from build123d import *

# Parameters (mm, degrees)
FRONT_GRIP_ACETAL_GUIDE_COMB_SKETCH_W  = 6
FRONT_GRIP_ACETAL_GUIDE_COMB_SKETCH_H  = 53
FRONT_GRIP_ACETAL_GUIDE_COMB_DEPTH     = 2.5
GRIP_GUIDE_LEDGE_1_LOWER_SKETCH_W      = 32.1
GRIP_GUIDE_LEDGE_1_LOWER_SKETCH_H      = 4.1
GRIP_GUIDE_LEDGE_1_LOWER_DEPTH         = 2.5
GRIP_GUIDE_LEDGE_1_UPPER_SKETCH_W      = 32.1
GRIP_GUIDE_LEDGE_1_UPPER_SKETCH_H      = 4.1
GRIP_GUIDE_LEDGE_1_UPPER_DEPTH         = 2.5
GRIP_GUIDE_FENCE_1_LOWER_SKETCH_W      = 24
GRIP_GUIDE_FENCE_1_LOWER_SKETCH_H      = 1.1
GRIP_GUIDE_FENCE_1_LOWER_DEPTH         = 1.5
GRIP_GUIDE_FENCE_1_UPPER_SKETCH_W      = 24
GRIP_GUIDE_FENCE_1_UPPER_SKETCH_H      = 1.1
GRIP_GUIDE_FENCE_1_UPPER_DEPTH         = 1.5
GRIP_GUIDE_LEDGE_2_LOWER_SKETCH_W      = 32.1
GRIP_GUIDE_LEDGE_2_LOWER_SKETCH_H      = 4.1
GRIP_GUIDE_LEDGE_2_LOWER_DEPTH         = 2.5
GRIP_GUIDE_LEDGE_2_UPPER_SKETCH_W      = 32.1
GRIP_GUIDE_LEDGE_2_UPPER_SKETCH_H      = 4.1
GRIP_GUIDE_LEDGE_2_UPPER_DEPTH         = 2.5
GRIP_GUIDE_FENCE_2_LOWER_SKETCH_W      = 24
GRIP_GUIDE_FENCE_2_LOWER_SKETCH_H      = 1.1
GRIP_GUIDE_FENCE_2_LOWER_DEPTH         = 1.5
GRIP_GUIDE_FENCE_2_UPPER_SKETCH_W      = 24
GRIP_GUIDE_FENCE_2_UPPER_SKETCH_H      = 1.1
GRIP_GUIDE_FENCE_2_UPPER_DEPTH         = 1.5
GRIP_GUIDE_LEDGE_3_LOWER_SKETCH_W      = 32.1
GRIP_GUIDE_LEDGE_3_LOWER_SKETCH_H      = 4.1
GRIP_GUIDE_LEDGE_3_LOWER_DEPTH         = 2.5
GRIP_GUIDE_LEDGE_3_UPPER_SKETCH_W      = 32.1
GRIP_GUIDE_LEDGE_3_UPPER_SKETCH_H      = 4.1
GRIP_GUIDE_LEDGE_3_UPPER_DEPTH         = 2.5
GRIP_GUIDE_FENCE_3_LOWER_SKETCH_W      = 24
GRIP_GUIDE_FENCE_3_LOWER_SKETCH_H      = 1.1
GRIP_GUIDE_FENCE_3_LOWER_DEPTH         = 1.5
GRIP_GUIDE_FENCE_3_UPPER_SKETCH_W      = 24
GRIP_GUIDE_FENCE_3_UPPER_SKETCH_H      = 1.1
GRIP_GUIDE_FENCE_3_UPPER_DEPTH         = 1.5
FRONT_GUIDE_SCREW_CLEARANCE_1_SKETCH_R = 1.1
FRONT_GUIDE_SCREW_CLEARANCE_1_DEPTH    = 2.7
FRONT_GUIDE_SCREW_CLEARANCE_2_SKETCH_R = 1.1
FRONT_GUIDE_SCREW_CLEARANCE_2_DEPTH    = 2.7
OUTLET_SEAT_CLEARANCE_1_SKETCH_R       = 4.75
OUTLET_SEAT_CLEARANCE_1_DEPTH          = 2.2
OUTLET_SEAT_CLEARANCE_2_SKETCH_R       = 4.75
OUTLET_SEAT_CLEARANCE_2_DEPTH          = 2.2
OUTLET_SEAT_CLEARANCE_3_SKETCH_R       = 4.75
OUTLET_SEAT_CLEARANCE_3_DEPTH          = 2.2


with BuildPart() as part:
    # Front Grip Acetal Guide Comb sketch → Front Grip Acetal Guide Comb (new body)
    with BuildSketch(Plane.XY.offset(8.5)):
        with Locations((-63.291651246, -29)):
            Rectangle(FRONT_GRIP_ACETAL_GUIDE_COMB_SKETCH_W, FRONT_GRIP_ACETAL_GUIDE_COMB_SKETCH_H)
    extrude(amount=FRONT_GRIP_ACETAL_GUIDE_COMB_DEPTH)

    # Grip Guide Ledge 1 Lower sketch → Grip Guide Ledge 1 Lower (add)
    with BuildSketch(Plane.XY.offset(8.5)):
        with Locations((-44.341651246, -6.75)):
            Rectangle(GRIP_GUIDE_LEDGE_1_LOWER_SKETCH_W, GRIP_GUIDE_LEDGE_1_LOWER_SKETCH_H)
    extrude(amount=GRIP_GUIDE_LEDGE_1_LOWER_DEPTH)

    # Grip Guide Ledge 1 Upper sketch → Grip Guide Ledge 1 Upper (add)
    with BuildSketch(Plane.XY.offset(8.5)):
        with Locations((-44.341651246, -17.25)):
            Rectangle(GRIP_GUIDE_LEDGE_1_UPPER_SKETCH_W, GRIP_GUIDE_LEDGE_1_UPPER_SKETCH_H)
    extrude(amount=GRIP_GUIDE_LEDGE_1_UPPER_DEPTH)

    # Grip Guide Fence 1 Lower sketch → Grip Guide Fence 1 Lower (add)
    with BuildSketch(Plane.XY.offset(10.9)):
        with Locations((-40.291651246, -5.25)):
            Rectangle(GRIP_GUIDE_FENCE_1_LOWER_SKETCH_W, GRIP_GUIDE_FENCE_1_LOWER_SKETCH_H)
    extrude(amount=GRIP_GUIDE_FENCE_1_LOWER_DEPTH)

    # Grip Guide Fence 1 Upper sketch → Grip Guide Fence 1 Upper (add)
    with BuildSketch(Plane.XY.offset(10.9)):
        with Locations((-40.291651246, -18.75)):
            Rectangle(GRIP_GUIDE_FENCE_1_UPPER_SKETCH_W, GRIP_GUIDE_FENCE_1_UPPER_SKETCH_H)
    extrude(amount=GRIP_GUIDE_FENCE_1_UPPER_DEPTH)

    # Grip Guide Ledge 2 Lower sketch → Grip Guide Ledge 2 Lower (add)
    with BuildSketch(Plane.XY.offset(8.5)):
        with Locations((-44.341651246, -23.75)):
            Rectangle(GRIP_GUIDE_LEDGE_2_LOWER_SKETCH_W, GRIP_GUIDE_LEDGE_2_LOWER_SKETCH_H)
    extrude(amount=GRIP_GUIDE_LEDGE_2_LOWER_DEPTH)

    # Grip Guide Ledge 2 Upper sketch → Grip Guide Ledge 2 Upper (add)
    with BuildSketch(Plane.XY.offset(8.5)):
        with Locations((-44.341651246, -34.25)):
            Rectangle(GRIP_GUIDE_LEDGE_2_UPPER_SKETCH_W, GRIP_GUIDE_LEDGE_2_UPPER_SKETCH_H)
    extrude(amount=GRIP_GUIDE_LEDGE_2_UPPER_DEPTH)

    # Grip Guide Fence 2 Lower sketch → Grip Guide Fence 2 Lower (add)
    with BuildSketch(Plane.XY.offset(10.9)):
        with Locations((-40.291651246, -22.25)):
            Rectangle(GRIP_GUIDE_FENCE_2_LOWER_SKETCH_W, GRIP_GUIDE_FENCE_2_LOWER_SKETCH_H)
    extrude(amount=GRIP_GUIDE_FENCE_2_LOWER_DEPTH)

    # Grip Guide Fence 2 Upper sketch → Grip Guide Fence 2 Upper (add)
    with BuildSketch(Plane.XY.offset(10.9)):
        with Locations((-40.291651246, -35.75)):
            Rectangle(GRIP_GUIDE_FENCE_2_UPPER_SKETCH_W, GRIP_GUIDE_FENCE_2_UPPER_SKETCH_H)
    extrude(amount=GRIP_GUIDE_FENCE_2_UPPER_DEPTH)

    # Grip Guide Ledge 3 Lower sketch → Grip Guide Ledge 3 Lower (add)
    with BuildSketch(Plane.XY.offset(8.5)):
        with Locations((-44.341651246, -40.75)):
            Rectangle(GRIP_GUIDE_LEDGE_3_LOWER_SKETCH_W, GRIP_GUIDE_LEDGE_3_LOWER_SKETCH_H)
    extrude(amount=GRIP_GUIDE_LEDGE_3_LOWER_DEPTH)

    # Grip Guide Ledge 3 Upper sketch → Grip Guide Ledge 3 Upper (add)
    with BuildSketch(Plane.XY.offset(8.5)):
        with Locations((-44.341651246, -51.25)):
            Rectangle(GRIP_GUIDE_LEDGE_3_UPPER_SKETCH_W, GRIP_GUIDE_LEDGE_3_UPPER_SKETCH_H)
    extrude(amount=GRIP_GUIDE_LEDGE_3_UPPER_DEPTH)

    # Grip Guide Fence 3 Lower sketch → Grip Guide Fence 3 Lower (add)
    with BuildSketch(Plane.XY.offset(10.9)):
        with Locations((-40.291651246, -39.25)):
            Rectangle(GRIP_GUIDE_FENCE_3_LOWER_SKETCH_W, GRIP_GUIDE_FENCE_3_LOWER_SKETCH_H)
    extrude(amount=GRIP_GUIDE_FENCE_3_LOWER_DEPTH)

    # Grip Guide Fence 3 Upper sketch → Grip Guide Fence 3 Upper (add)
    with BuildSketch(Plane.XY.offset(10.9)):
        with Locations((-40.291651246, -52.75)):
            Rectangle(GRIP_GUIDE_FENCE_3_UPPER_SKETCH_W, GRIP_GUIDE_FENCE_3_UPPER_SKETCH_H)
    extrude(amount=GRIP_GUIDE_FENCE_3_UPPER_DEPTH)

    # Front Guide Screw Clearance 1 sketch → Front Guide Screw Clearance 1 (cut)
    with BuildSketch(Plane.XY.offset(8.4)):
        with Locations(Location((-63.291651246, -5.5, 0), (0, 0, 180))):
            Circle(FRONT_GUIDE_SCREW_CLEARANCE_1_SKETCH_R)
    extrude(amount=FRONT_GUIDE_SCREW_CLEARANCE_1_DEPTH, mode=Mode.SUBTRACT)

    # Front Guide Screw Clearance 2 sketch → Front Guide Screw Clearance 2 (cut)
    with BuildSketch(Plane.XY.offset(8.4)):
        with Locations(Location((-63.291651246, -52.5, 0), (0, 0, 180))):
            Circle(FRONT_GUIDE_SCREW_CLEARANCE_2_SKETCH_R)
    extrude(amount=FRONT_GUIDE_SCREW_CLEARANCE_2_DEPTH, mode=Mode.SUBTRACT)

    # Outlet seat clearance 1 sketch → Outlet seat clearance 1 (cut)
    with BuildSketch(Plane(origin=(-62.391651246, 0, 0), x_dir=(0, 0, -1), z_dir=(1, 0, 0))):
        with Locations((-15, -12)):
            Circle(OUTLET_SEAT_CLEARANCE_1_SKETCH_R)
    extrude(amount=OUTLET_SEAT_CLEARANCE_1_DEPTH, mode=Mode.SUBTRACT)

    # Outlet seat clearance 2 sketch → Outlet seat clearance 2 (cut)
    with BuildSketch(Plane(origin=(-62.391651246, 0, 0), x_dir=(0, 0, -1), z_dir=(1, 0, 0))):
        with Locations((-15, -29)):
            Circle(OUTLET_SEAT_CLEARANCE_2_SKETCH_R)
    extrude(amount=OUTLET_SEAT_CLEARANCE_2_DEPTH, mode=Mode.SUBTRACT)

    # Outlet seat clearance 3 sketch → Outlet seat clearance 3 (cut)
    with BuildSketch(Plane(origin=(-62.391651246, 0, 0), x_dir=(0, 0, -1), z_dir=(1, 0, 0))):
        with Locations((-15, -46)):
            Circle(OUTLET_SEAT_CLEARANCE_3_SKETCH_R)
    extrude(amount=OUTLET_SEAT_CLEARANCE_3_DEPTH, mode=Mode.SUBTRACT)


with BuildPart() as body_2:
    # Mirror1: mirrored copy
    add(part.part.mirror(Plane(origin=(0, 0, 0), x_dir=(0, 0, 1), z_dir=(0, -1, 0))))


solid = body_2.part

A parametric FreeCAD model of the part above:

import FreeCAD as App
import Part
import Sketcher
Q = App.Units.Quantity

doc = App.newDocument("Part")
body = doc.addObject("PartDesign::Body", "Body")

# Sketch on XY plane
sketch1 = body.newObject("Sketcher::SketchObject", "Sketch")
sketch1.AttachmentSupport = (doc.getObject("XY_Plane"), [""])
sketch1.MapMode = "FlatFace"
sketch1.AttachmentOffset = App.Placement(App.Vector(0, 0, 8.5), App.Rotation())
sketch1.addGeometry([
    Part.LineSegment(App.Vector(-66, -2, 0), App.Vector(-66, -56, 0)),
    Part.LineSegment(App.Vector(-66, -56, 0), App.Vector(-60, -56, 0)),
    Part.LineSegment(App.Vector(-60, -56, 0), App.Vector(-60, -2, 0)),
    Part.LineSegment(App.Vector(-60, -2, 0), App.Vector(-66, -2, 0)),
], False)
sketch1.addConstraint([
    Sketcher.Constraint("Coincident", 0, 2, 1, 1),
    Sketcher.Constraint("Coincident", 1, 2, 2, 1),
    Sketcher.Constraint("Coincident", 2, 2, 3, 1),
    Sketcher.Constraint("Coincident", 3, 2, 0, 1),
    Sketcher.Constraint("Vertical", 0),
    Sketcher.Constraint("Horizontal", 1),
    Sketcher.Constraint("Vertical", 2),
    Sketcher.Constraint("Horizontal", 3),
    Sketcher.Constraint("DistanceX", 1, 1, 1, 2, Q("6 mm")),
    Sketcher.Constraint("DistanceY", 0, 2, 0, 1, Q("53 mm")),
    Sketcher.Constraint("DistanceY", 0, 2, -1, 1, Q("55.5 mm")),
    Sketcher.Constraint("DistanceX", 0, 2, -1, 1, Q("66.291651 mm")),
])
pad1 = body.newObject("PartDesign::Pad", "Pad")
pad1.Profile = sketch1
pad1.Length = 2.5

# Sketch on XY plane
sketch2 = body.newObject("Sketcher::SketchObject", "Sketch001")
sketch2.AttachmentSupport = (doc.getObject("XY_Plane"), [""])
sketch2.MapMode = "FlatFace"
sketch2.AttachmentOffset = App.Placement(App.Vector(0, 0, 8.5), App.Rotation())
sketch2.addGeometry([
    Part.LineSegment(App.Vector(-60.4, -4.7, 0), App.Vector(-60.4, -8.8, 0)),
    Part.LineSegment(App.Vector(-60.4, -8.8, 0), App.Vector(-28.3, -8.8, 0)),
    Part.LineSegment(App.Vector(-28.3, -8.8, 0), App.Vector(-28.3, -4.7, 0)),
    Part.LineSegment(App.Vector(-28.3, -4.7, 0), App.Vector(-60.4, -4.7, 0)),
], False)
sketch2.addConstraint([
    Sketcher.Constraint("Coincident", 0, 2, 1, 1),
    Sketcher.Constraint("Coincident", 1, 2, 2, 1),
    Sketcher.Constraint("Coincident", 2, 2, 3, 1),
    Sketcher.Constraint("Coincident", 3, 2, 0, 1),
    Sketcher.Constraint("Vertical", 0),
    Sketcher.Constraint("Horizontal", 1),
    Sketcher.Constraint("Vertical", 2),
    Sketcher.Constraint("Horizontal", 3),
    Sketcher.Constraint("DistanceX", 1, 1, 1, 2, Q("32.1 mm")),
    Sketcher.Constraint("DistanceY", 0, 2, 0, 1, Q("4.1 mm")),
    Sketcher.Constraint("DistanceY", 0, 2, -1, 1, Q("8.8 mm")),
    Sketcher.Constraint("DistanceX", 0, 2, -1, 1, Q("60.391651 mm")),
])
pad2 = body.newObject("PartDesign::Pad", "Pad001")
pad2.Profile = sketch2
pad2.Length = 2.5

# Sketch on XY plane
sketch3 = body.newObject("Sketcher::SketchObject", "Sketch002")
sketch3.AttachmentSupport = (doc.getObject("XY_Plane"), [""])
sketch3.MapMode = "FlatFace"
sketch3.AttachmentOffset = App.Placement(App.Vector(0, 0, 8.5), App.Rotation())
sketch3.addGeometry([
    Part.LineSegment(App.Vector(-60.4, -15.2, 0), App.Vector(-60.4, -19.3, 0)),
    Part.LineSegment(App.Vector(-60.4, -19.3, 0), App.Vector(-28.3, -19.3, 0)),
    Part.LineSegment(App.Vector(-28.3, -19.3, 0), App.Vector(-28.3, -15.2, 0)),
    Part.LineSegment(App.Vector(-28.3, -15.2, 0), App.Vector(-60.4, -15.2, 0)),
], False)
sketch3.addConstraint([
    Sketcher.Constraint("Coincident", 0, 2, 1, 1),
    Sketcher.Constraint("Coincident", 1, 2, 2, 1),
    Sketcher.Constraint("Coincident", 2, 2, 3, 1),
    Sketcher.Constraint("Coincident", 3, 2, 0, 1),
    Sketcher.Constraint("Vertical", 0),
    Sketcher.Constraint("Horizontal", 1),
    Sketcher.Constraint("Vertical", 2),
    Sketcher.Constraint("Horizontal", 3),
    Sketcher.Constraint("DistanceX", 1, 1, 1, 2, Q("32.1 mm")),
    Sketcher.Constraint("DistanceY", 0, 2, 0, 1, Q("4.1 mm")),
    Sketcher.Constraint("DistanceY", 0, 2, -1, 1, Q("19.3 mm")),
    Sketcher.Constraint("DistanceX", 0, 2, -1, 1, Q("60.391651 mm")),
])
pad3 = body.newObject("PartDesign::Pad", "Pad002")
pad3.Profile = sketch3
pad3.Length = 2.5

# Sketch on XY plane
sketch4 = body.newObject("Sketcher::SketchObject", "Sketch003")
sketch4.AttachmentSupport = (doc.getObject("XY_Plane"), [""])
sketch4.MapMode = "FlatFace"
sketch4.AttachmentOffset = App.Placement(App.Vector(0, 0, 10.9), App.Rotation())
sketch4.addGeometry([
    Part.LineSegment(App.Vector(-52.3, -4.7, 0), App.Vector(-52.3, -5.8, 0)),
    Part.LineSegment(App.Vector(-52.3, -5.8, 0), App.Vector(-28.3, -5.8, 0)),
    Part.LineSegment(App.Vector(-28.3, -5.8, 0), App.Vector(-28.3, -4.7, 0)),
    Part.LineSegment(App.Vector(-28.3, -4.7, 0), App.Vector(-52.3, -4.7, 0)),
], False)
sketch4.addConstraint([
    Sketcher.Constraint("Coincident", 0, 2, 1, 1),
    Sketcher.Constraint("Coincident", 1, 2, 2, 1),
    Sketcher.Constraint("Coincident", 2, 2, 3, 1),
    Sketcher.Constraint("Coincident", 3, 2, 0, 1),
    Sketcher.Constraint("Vertical", 0),
    Sketcher.Constraint("Horizontal", 1),
    Sketcher.Constraint("Vertical", 2),
    Sketcher.Constraint("Horizontal", 3),
    Sketcher.Constraint("DistanceX", 1, 1, 1, 2, Q("24 mm")),
    Sketcher.Constraint("DistanceY", 0, 2, 0, 1, Q("1.1 mm")),
    Sketcher.Constraint("DistanceY", 0, 2, -1, 1, Q("5.8 mm")),
    Sketcher.Constraint("DistanceX", 0, 2, -1, 1, Q("52.291651 mm")),
])
pad4 = body.newObject("PartDesign::Pad", "Pad003")
pad4.Profile = sketch4
pad4.Length = 1.5

# Sketch on XY plane
sketch5 = body.newObject("Sketcher::SketchObject", "Sketch004")
sketch5.AttachmentSupport = (doc.getObject("XY_Plane"), [""])
sketch5.MapMode = "FlatFace"
sketch5.AttachmentOffset = App.Placement(App.Vector(0, 0, 10.9), App.Rotation())
sketch5.addGeometry([
    Part.LineSegment(App.Vector(-52.3, -18.2, 0), App.Vector(-52.3, -19.3, 0)),
    Part.LineSegment(App.Vector(-52.3, -19.3, 0), App.Vector(-28.3, -19.3, 0)),
    Part.LineSegment(App.Vector(-28.3, -19.3, 0), App.Vector(-28.3, -18.2, 0)),
    Part.LineSegment(App.Vector(-28.3, -18.2, 0), App.Vector(-52.3, -18.2, 0)),
], False)
sketch5.addConstraint([
    Sketcher.Constraint("Coincident", 0, 2, 1, 1),
    Sketcher.Constraint("Coincident", 1, 2, 2, 1),
    Sketcher.Constraint("Coincident", 2, 2, 3, 1),
    Sketcher.Constraint("Coincident", 3, 2, 0, 1),
    Sketcher.Constraint("Vertical", 0),
    Sketcher.Constraint("Horizontal", 1),
    Sketcher.Constraint("Vertical", 2),
    Sketcher.Constraint("Horizontal", 3),
    Sketcher.Constraint("DistanceX", 1, 1, 1, 2, Q("24 mm")),
    Sketcher.Constraint("DistanceY", 0, 2, 0, 1, Q("1.1 mm")),
    Sketcher.Constraint("DistanceY", 0, 2, -1, 1, Q("19.3 mm")),
    Sketcher.Constraint("DistanceX", 0, 2, -1, 1, Q("52.291651 mm")),
])
pad5 = body.newObject("PartDesign::Pad", "Pad004")
pad5.Profile = sketch5
pad5.Length = 1.5

# Sketch on XY plane
sketch6 = body.newObject("Sketcher::SketchObject", "Sketch005")
sketch6.AttachmentSupport = (doc.getObject("XY_Plane"), [""])
sketch6.MapMode = "FlatFace"
sketch6.AttachmentOffset = App.Placement(App.Vector(0, 0, 8.5), App.Rotation())
sketch6.addGeometry([
    Part.LineSegment(App.Vector(-60.4, -21.7, 0), App.Vector(-60.4, -25.8, 0)),
    Part.LineSegment(App.Vector(-60.4, -25.8, 0), App.Vector(-28.3, -25.8, 0)),
    Part.LineSegment(App.Vector(-28.3, -25.8, 0), App.Vector(-28.3, -21.7, 0)),
    Part.LineSegment(App.Vector(-28.3, -21.7, 0), App.Vector(-60.4, -21.7, 0)),
], False)
sketch6.addConstraint([
    Sketcher.Constraint("Coincident", 0, 2, 1, 1),
    Sketcher.Constraint("Coincident", 1, 2, 2, 1),
    Sketcher.Constraint("Coincident", 2, 2, 3, 1),
    Sketcher.Constraint("Coincident", 3, 2, 0, 1),
    Sketcher.Constraint("Vertical", 0),
    Sketcher.Constraint("Horizontal", 1),
    Sketcher.Constraint("Vertical", 2),
    Sketcher.Constraint("Horizontal", 3),
    Sketcher.Constraint("DistanceX", 1, 1, 1, 2, Q("32.1 mm")),
    Sketcher.Constraint("DistanceY", 0, 2, 0, 1, Q("4.1 mm")),
    Sketcher.Constraint("DistanceY", 0, 2, -1, 1, Q("25.8 mm")),
    Sketcher.Constraint("DistanceX", 0, 2, -1, 1, Q("60.391651 mm")),
])
pad6 = body.newObject("PartDesign::Pad", "Pad005")
pad6.Profile = sketch6
pad6.Length = 2.5

# Sketch on XY plane
sketch7 = body.newObject("Sketcher::SketchObject", "Sketch006")
sketch7.AttachmentSupport = (doc.getObject("XY_Plane"), [""])
sketch7.MapMode = "FlatFace"
sketch7.AttachmentOffset = App.Placement(App.Vector(0, 0, 8.5), App.Rotation())
sketch7.addGeometry([
    Part.LineSegment(App.Vector(-60.4, -32.2, 0), App.Vector(-60.4, -36.3, 0)),
    Part.LineSegment(App.Vector(-60.4, -36.3, 0), App.Vector(-28.3, -36.3, 0)),
    Part.LineSegment(App.Vector(-28.3, -36.3, 0), App.Vector(-28.3, -32.2, 0)),
    Part.LineSegment(App.Vector(-28.3, -32.2, 0), App.Vector(-60.4, -32.2, 0)),
], False)
sketch7.addConstraint([
    Sketcher.Constraint("Coincident", 0, 2, 1, 1),
    Sketcher.Constraint("Coincident", 1, 2, 2, 1),
    Sketcher.Constraint("Coincident", 2, 2, 3, 1),
    Sketcher.Constraint("Coincident", 3, 2, 0, 1),
    Sketcher.Constraint("Vertical", 0),
    Sketcher.Constraint("Horizontal", 1),
    Sketcher.Constraint("Vertical", 2),
    Sketcher.Constraint("Horizontal", 3),
    Sketcher.Constraint("DistanceX", 1, 1, 1, 2, Q("32.1 mm")),
    Sketcher.Constraint("DistanceY", 0, 2, 0, 1, Q("4.1 mm")),
    Sketcher.Constraint("DistanceY", 0, 2, -1, 1, Q("36.3 mm")),
    Sketcher.Constraint("DistanceX", 0, 2, -1, 1, Q("60.391651 mm")),
])
pad7 = body.newObject("PartDesign::Pad", "Pad006")
pad7.Profile = sketch7
pad7.Length = 2.5

# Sketch on XY plane
sketch8 = body.newObject("Sketcher::SketchObject", "Sketch007")
sketch8.AttachmentSupport = (doc.getObject("XY_Plane"), [""])
sketch8.MapMode = "FlatFace"
sketch8.AttachmentOffset = App.Placement(App.Vector(0, 0, 10.9), App.Rotation())
sketch8.addGeometry([
    Part.LineSegment(App.Vector(-52.3, -21.7, 0), App.Vector(-52.3, -22.8, 0)),
    Part.LineSegment(App.Vector(-52.3, -22.8, 0), App.Vector(-28.3, -22.8, 0)),
    Part.LineSegment(App.Vector(-28.3, -22.8, 0), App.Vector(-28.3, -21.7, 0)),
    Part.LineSegment(App.Vector(-28.3, -21.7, 0), App.Vector(-52.3, -21.7, 0)),
], False)
sketch8.addConstraint([
    Sketcher.Constraint("Coincident", 0, 2, 1, 1),
    Sketcher.Constraint("Coincident", 1, 2, 2, 1),
    Sketcher.Constraint("Coincident", 2, 2, 3, 1),
    Sketcher.Constraint("Coincident", 3, 2, 0, 1),
    Sketcher.Constraint("Vertical", 0),
    Sketcher.Constraint("Horizontal", 1),
    Sketcher.Constraint("Vertical", 2),
    Sketcher.Constraint("Horizontal", 3),
    Sketcher.Constraint("DistanceX", 1, 1, 1, 2, Q("24 mm")),
    Sketcher.Constraint("DistanceY", 0, 2, 0, 1, Q("1.1 mm")),
    Sketcher.Constraint("DistanceY", 0, 2, -1, 1, Q("22.8 mm")),
    Sketcher.Constraint("DistanceX", 0, 2, -1, 1, Q("52.291651 mm")),
])
pad8 = body.newObject("PartDesign::Pad", "Pad007")
pad8.Profile = sketch8
pad8.Length = 1.5

# Sketch on XY plane
sketch9 = body.newObject("Sketcher::SketchObject", "Sketch008")
sketch9.AttachmentSupport = (doc.getObject("XY_Plane"), [""])
sketch9.MapMode = "FlatFace"
sketch9.AttachmentOffset = App.Placement(App.Vector(0, 0, 10.9), App.Rotation())
sketch9.addGeometry([
    Part.LineSegment(App.Vector(-52.3, -35.2, 0), App.Vector(-52.3, -36.3, 0)),
    Part.LineSegment(App.Vector(-52.3, -36.3, 0), App.Vector(-28.3, -36.3, 0)),
    Part.LineSegment(App.Vector(-28.3, -36.3, 0), App.Vector(-28.3, -35.2, 0)),
    Part.LineSegment(App.Vector(-28.3, -35.2, 0), App.Vector(-52.3, -35.2, 0)),
], False)
sketch9.addConstraint([
    Sketcher.Constraint("Coincident", 0, 2, 1, 1),
    Sketcher.Constraint("Coincident", 1, 2, 2, 1),
    Sketcher.Constraint("Coincident", 2, 2, 3, 1),
    Sketcher.Constraint("Coincident", 3, 2, 0, 1),
    Sketcher.Constraint("Vertical", 0),
    Sketcher.Constraint("Horizontal", 1),
    Sketcher.Constraint("Vertical", 2),
    Sketcher.Constraint("Horizontal", 3),
    Sketcher.Constraint("DistanceX", 1, 1, 1, 2, Q("24 mm")),
    Sketcher.Constraint("DistanceY", 0, 2, 0, 1, Q("1.1 mm")),
    Sketcher.Constraint("DistanceY", 0, 2, -1, 1, Q("36.3 mm")),
    Sketcher.Constraint("DistanceX", 0, 2, -1, 1, Q("52.291651 mm")),
])
pad9 = body.newObject("PartDesign::Pad", "Pad008")
pad9.Profile = sketch9
pad9.Length = 1.5

# Sketch on XY plane
sketch10 = body.newObject("Sketcher::SketchObject", "Sketch009")
sketch10.AttachmentSupport = (doc.getObject("XY_Plane"), [""])
sketch10.MapMode = "FlatFace"
sketch10.AttachmentOffset = App.Placement(App.Vector(0, 0, 8.5), App.Rotation())
sketch10.addGeometry([
    Part.LineSegment(App.Vector(-60.4, -38.7, 0), App.Vector(-60.4, -42.8, 0)),
    Part.LineSegment(App.Vector(-60.4, -42.8, 0), App.Vector(-28.3, -42.8, 0)),
    Part.LineSegment(App.Vector(-28.3, -42.8, 0), App.Vector(-28.3, -38.7, 0)),
    Part.LineSegment(App.Vector(-28.3, -38.7, 0), App.Vector(-60.4, -38.7, 0)),
], False)
sketch10.addConstraint([
    Sketcher.Constraint("Coincident", 0, 2, 1, 1),
    Sketcher.Constraint("Coincident", 1, 2, 2, 1),
    Sketcher.Constraint("Coincident", 2, 2, 3, 1),
    Sketcher.Constraint("Coincident", 3, 2, 0, 1),
    Sketcher.Constraint("Vertical", 0),
    Sketcher.Constraint("Horizontal", 1),
    Sketcher.Constraint("Vertical", 2),
    Sketcher.Constraint("Horizontal", 3),
    Sketcher.Constraint("DistanceX", 1, 1, 1, 2, Q("32.1 mm")),
    Sketcher.Constraint("DistanceY", 0, 2, 0, 1, Q("4.1 mm")),
    Sketcher.Constraint("DistanceY", 0, 2, -1, 1, Q("42.8 mm")),
    Sketcher.Constraint("DistanceX", 0, 2, -1, 1, Q("60.391651 mm")),
])
pad10 = body.newObject("PartDesign::Pad", "Pad009")
pad10.Profile = sketch10
pad10.Length = 2.5

# Sketch on XY plane
sketch11 = body.newObject("Sketcher::SketchObject", "Sketch010")
sketch11.AttachmentSupport = (doc.getObject("XY_Plane"), [""])
sketch11.MapMode = "FlatFace"
sketch11.AttachmentOffset = App.Placement(App.Vector(0, 0, 8.5), App.Rotation())
sketch11.addGeometry([
    Part.LineSegment(App.Vector(-60.4, -49.2, 0), App.Vector(-60.4, -53.3, 0)),
    Part.LineSegment(App.Vector(-60.4, -53.3, 0), App.Vector(-28.3, -53.3, 0)),
    Part.LineSegment(App.Vector(-28.3, -53.3, 0), App.Vector(-28.3, -49.2, 0)),
    Part.LineSegment(App.Vector(-28.3, -49.2, 0), App.Vector(-60.4, -49.2, 0)),
], False)
sketch11.addConstraint([
    Sketcher.Constraint("Coincident", 0, 2, 1, 1),
    Sketcher.Constraint("Coincident", 1, 2, 2, 1),
    Sketcher.Constraint("Coincident", 2, 2, 3, 1),
    Sketcher.Constraint("Coincident", 3, 2, 0, 1),
    Sketcher.Constraint("Vertical", 0),
    Sketcher.Constraint("Horizontal", 1),
    Sketcher.Constraint("Vertical", 2),
    Sketcher.Constraint("Horizontal", 3),
    Sketcher.Constraint("DistanceX", 1, 1, 1, 2, Q("32.1 mm")),
    Sketcher.Constraint("DistanceY", 0, 2, 0, 1, Q("4.1 mm")),
    Sketcher.Constraint("DistanceY", 0, 2, -1, 1, Q("53.3 mm")),
    Sketcher.Constraint("DistanceX", 0, 2, -1, 1, Q("60.391651 mm")),
])
pad11 = body.newObject("PartDesign::Pad", "Pad010")
pad11.Profile = sketch11
pad11.Length = 2.5

# Sketch on XY plane
sketch12 = body.newObject("Sketcher::SketchObject", "Sketch011")
sketch12.AttachmentSupport = (doc.getObject("XY_Plane"), [""])
sketch12.MapMode = "FlatFace"
sketch12.AttachmentOffset = App.Placement(App.Vector(0, 0, 10.9), App.Rotation())
sketch12.addGeometry([
    Part.LineSegment(App.Vector(-52.3, -38.7, 0), App.Vector(-52.3, -39.8, 0)),
    Part.LineSegment(App.Vector(-52.3, -39.8, 0), App.Vector(-28.3, -39.8, 0)),
    Part.LineSegment(App.Vector(-28.3, -39.8, 0), App.Vector(-28.3, -38.7, 0)),
    Part.LineSegment(App.Vector(-28.3, -38.7, 0), App.Vector(-52.3, -38.7, 0)),
], False)
sketch12.addConstraint([
    Sketcher.Constraint("Coincident", 0, 2, 1, 1),
    Sketcher.Constraint("Coincident", 1, 2, 2, 1),
    Sketcher.Constraint("Coincident", 2, 2, 3, 1),
    Sketcher.Constraint("Coincident", 3, 2, 0, 1),
    Sketcher.Constraint("Vertical", 0),
    Sketcher.Constraint("Horizontal", 1),
    Sketcher.Constraint("Vertical", 2),
    Sketcher.Constraint("Horizontal", 3),
    Sketcher.Constraint("DistanceX", 1, 1, 1, 2, Q("24 mm")),
    Sketcher.Constraint("DistanceY", 0, 2, 0, 1, Q("1.1 mm")),
    Sketcher.Constraint("DistanceY", 0, 2, -1, 1, Q("39.8 mm")),
    Sketcher.Constraint("DistanceX", 0, 2, -1, 1, Q("52.291651 mm")),
])
pad12 = body.newObject("PartDesign::Pad", "Pad011")
pad12.Profile = sketch12
pad12.Length = 1.5

# Sketch on XY plane
sketch13 = body.newObject("Sketcher::SketchObject", "Sketch012")
sketch13.AttachmentSupport = (doc.getObject("XY_Plane"), [""])
sketch13.MapMode = "FlatFace"
sketch13.AttachmentOffset = App.Placement(App.Vector(0, 0, 10.9), App.Rotation())
sketch13.addGeometry([
    Part.LineSegment(App.Vector(-52.3, -52.2, 0), App.Vector(-52.3, -53.3, 0)),
    Part.LineSegment(App.Vector(-52.3, -53.3, 0), App.Vector(-28.3, -53.3, 0)),
    Part.LineSegment(App.Vector(-28.3, -53.3, 0), App.Vector(-28.3, -52.2, 0)),
    Part.LineSegment(App.Vector(-28.3, -52.2, 0), App.Vector(-52.3, -52.2, 0)),
], False)
sketch13.addConstraint([
    Sketcher.Constraint("Coincident", 0, 2, 1, 1),
    Sketcher.Constraint("Coincident", 1, 2, 2, 1),
    Sketcher.Constraint("Coincident", 2, 2, 3, 1),
    Sketcher.Constraint("Coincident", 3, 2, 0, 1),
    Sketcher.Constraint("Vertical", 0),
    Sketcher.Constraint("Horizontal", 1),
    Sketcher.Constraint("Vertical", 2),
    Sketcher.Constraint("Horizontal", 3),
    Sketcher.Constraint("DistanceX", 1, 1, 1, 2, Q("24 mm")),
    Sketcher.Constraint("DistanceY", 0, 2, 0, 1, Q("1.1 mm")),
    Sketcher.Constraint("DistanceY", 0, 2, -1, 1, Q("53.3 mm")),
    Sketcher.Constraint("DistanceX", 0, 2, -1, 1, Q("52.291651 mm")),
])
pad13 = body.newObject("PartDesign::Pad", "Pad012")
pad13.Profile = sketch13
pad13.Length = 1.5

# Sketch on XY plane
sketch14 = body.newObject("Sketcher::SketchObject", "Sketch013")
sketch14.AttachmentSupport = (doc.getObject("XY_Plane"), [""])
sketch14.MapMode = "FlatFace"
sketch14.AttachmentOffset = App.Placement(App.Vector(0, 0, 8.4), App.Rotation())
sketch14.addGeometry(Part.Circle(App.Vector(-63.3, -5.5, 0), App.Vector(0, 0, 1), 1.1), False)
sketch14.addConstraint([
    Sketcher.Constraint("Diameter", 0, Q("2.2 mm")),
    Sketcher.Constraint("DistanceY", 0, 3, -1, 1, Q("5.5 mm")),
    Sketcher.Constraint("DistanceX", 0, 3, -1, 1, Q("63.291651 mm")),
])
pocket1 = body.newObject("PartDesign::Pocket", "Pocket")
pocket1.Profile = sketch14
pocket1.Length = 2.7
pocket1.Reversed = True

# Sketch on XY plane
sketch15 = body.newObject("Sketcher::SketchObject", "Sketch014")
sketch15.AttachmentSupport = (doc.getObject("XY_Plane"), [""])
sketch15.MapMode = "FlatFace"
sketch15.AttachmentOffset = App.Placement(App.Vector(0, 0, 8.4), App.Rotation())
sketch15.addGeometry(Part.Circle(App.Vector(-63.3, -52.5, 0), App.Vector(0, 0, 1), 1.1), False)
sketch15.addConstraint([
    Sketcher.Constraint("Diameter", 0, Q("2.2 mm")),
    Sketcher.Constraint("DistanceY", 0, 3, -1, 1, Q("52.5 mm")),
    Sketcher.Constraint("DistanceX", 0, 3, -1, 1, Q("63.291651 mm")),
])
pocket2 = body.newObject("PartDesign::Pocket", "Pocket001")
pocket2.Profile = sketch15
pocket2.Length = 2.7
pocket2.Reversed = True

# Sketch on YZ plane
sketch16 = body.newObject("Sketcher::SketchObject", "Sketch015")
sketch16.AttachmentSupport = (doc.getObject("YZ_Plane"), [""])
sketch16.MapMode = "FlatFace"
sketch16.AttachmentOffset = App.Placement(App.Vector(0, 0, -62.391651), App.Rotation())
sketch16.addGeometry(Part.Circle(App.Vector(-12, 15, 0), App.Vector(0, 0, 1), 4.8), False)
sketch16.addConstraint([
    Sketcher.Constraint("Diameter", 0, Q("9.5 mm")),
    Sketcher.Constraint("DistanceX", 0, 3, -1, 1, Q("12 mm")),
    Sketcher.Constraint("DistanceY", -1, 1, 0, 3, Q("15 mm")),
])
pocket3 = body.newObject("PartDesign::Pocket", "Pocket002")
pocket3.Profile = sketch16
pocket3.Length = 2.2
pocket3.Reversed = True

# Sketch on YZ plane
sketch17 = body.newObject("Sketcher::SketchObject", "Sketch016")
sketch17.AttachmentSupport = (doc.getObject("YZ_Plane"), [""])
sketch17.MapMode = "FlatFace"
sketch17.AttachmentOffset = App.Placement(App.Vector(0, 0, -62.391651), App.Rotation())
sketch17.addGeometry(Part.Circle(App.Vector(-29, 15, 0), App.Vector(0, 0, 1), 4.8), False)
sketch17.addConstraint([
    Sketcher.Constraint("Diameter", 0, Q("9.5 mm")),
    Sketcher.Constraint("DistanceX", 0, 3, -1, 1, Q("29 mm")),
    Sketcher.Constraint("DistanceY", -1, 1, 0, 3, Q("15 mm")),
])
pocket4 = body.newObject("PartDesign::Pocket", "Pocket003")
pocket4.Profile = sketch17
pocket4.Length = 2.2
pocket4.Reversed = True

# Sketch on YZ plane
sketch18 = body.newObject("Sketcher::SketchObject", "Sketch017")
sketch18.AttachmentSupport = (doc.getObject("YZ_Plane"), [""])
sketch18.MapMode = "FlatFace"
sketch18.AttachmentOffset = App.Placement(App.Vector(0, 0, -62.391651), App.Rotation())
sketch18.addGeometry(Part.Circle(App.Vector(-46, 15, 0), App.Vector(0, 0, 1), 4.8), False)
sketch18.addConstraint([
    Sketcher.Constraint("Diameter", 0, Q("9.5 mm")),
    Sketcher.Constraint("DistanceX", 0, 3, -1, 1, Q("46 mm")),
    Sketcher.Constraint("DistanceY", -1, 1, 0, 3, Q("15 mm")),
])
pocket5 = body.newObject("PartDesign::Pocket", "Pocket004")
pocket5.Profile = sketch18
pocket5.Length = 2.2
pocket5.Reversed = True
body2 = doc.addObject("PartDesign::Body", "Body001")
doc.recompute()

mirroring = doc.addObject("Part::Mirroring", "Mirroring")
mirroring.Source = body
mirroring.Base = App.Vector(0, 0, 0)
mirroring.Normal = App.Vector(0, -1, 0)
body2.BaseFeature = mirroring
doc.recompute()
body.Visibility = False
mirroring.Visibility = False

doc.recompute()
